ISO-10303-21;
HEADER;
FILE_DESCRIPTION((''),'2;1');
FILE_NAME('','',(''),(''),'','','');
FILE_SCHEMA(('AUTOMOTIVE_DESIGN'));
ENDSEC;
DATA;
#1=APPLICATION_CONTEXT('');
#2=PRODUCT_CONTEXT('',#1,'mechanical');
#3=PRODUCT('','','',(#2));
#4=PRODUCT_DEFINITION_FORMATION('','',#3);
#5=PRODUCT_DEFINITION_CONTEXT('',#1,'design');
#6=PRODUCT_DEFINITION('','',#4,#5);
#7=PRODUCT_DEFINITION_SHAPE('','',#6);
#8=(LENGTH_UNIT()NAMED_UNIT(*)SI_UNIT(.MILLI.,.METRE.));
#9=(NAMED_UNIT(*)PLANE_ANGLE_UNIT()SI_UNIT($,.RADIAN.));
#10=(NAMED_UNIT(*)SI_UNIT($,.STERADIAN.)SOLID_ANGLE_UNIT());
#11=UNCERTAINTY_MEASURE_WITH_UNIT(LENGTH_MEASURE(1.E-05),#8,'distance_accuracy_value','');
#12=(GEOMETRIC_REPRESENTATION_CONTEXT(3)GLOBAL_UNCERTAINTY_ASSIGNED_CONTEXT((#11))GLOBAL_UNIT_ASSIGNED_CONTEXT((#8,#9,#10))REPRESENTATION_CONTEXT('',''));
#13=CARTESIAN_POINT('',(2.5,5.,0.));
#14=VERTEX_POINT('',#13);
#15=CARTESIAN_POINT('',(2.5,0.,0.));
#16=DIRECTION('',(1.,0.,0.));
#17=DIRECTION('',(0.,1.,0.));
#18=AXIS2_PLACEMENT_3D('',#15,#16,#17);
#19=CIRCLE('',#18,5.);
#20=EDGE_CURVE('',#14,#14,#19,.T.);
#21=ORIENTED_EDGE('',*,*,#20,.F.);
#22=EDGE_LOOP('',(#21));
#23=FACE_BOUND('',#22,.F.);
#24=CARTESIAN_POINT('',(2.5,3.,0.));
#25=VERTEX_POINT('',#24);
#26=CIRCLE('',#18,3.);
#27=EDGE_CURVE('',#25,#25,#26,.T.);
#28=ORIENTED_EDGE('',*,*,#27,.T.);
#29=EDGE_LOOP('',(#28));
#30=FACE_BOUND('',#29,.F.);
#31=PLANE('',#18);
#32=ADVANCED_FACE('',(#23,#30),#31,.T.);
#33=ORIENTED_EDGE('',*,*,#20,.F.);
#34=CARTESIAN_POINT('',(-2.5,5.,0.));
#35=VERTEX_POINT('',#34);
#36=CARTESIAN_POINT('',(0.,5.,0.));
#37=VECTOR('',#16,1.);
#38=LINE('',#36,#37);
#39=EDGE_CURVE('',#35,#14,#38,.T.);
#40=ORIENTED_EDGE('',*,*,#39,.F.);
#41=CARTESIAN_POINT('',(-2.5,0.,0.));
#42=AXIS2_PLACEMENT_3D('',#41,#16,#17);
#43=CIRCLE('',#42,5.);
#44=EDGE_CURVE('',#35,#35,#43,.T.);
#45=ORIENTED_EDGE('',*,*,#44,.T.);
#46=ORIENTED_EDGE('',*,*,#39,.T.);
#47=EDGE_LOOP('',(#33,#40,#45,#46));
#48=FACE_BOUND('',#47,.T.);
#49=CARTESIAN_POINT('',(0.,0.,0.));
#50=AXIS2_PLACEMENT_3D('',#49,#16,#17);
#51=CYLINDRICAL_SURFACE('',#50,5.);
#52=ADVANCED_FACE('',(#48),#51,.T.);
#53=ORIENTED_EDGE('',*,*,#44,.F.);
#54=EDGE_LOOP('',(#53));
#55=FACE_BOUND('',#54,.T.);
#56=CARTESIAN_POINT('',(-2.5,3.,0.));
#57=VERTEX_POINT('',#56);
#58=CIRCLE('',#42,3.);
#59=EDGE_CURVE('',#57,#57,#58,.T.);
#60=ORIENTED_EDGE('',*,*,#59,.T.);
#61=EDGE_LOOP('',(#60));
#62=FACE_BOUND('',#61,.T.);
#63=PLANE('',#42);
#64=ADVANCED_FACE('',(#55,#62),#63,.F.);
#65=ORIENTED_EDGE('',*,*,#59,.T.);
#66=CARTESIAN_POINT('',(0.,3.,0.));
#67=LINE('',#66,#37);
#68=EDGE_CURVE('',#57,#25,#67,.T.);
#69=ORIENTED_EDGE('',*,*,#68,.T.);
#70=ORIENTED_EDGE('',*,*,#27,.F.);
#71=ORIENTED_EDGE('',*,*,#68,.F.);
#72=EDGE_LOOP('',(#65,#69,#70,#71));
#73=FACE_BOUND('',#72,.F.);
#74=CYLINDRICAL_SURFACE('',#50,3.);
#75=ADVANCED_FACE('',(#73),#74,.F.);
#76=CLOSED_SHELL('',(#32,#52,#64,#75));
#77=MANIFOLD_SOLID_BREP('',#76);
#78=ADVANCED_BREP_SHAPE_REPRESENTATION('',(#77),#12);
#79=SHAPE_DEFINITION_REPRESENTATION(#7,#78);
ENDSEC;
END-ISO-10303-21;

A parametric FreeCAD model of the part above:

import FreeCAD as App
import Part
import Sketcher


def add_polygon(sketch, points):
    """Adds a closed chain of lines whose ends are joined by coincident constraints."""
    first, n = sketch.GeometryCount, len(points)
    for a, b in zip(points, points[1:] + points[:1]):
        sketch.addGeometry(Part.LineSegment(App.Vector(*a, 0), App.Vector(*b, 0)), False)
    for i in range(n):
        sketch.addConstraint(Sketcher.Constraint("Coincident", first + i, 2, first + (i + 1) % n, 1))

doc = App.newDocument("Part")
body = doc.addObject("PartDesign::Body", "Body")

# Sketch on XY plane
sketch1 = body.newObject("Sketcher::SketchObject", "Sketch")
sketch1.AttachmentSupport = (doc.getObject("XY_Plane"), [""])
sketch1.MapMode = "FlatFace"
add_polygon(sketch1, [(-2.5, 5), (-2.5, 3), (2.5, 3), (2.5, 5)])  # lines 0-3
sketch1.addConstraint(Sketcher.Constraint("Vertical", 0))
sketch1.addConstraint(Sketcher.Constraint("Horizontal", 1))
sketch1.addConstraint(Sketcher.Constraint("Vertical", 2))
sketch1.addConstraint(Sketcher.Constraint("Horizontal", 3))
sketch1.addConstraint(Sketcher.Constraint("DistanceX", 1, 1, 1, 2, 5.0))
sketch1.addConstraint(Sketcher.Constraint("DistanceY", 0, 2, 0, 1, 2.0))
sketch1.addConstraint(Sketcher.Constraint("DistanceY", -1, 1, 0, 2, 3.0))
sketch1.addConstraint(Sketcher.Constraint("DistanceX", 0, 2, -1, 1, 2.5))
revolution = body.newObject("PartDesign::Revolution", "Revolution")
revolution.Profile = sketch1
revolution.ReferenceAxis = (sketch1, ["H_Axis"])
revolution.Angle = 360

doc.recompute()
